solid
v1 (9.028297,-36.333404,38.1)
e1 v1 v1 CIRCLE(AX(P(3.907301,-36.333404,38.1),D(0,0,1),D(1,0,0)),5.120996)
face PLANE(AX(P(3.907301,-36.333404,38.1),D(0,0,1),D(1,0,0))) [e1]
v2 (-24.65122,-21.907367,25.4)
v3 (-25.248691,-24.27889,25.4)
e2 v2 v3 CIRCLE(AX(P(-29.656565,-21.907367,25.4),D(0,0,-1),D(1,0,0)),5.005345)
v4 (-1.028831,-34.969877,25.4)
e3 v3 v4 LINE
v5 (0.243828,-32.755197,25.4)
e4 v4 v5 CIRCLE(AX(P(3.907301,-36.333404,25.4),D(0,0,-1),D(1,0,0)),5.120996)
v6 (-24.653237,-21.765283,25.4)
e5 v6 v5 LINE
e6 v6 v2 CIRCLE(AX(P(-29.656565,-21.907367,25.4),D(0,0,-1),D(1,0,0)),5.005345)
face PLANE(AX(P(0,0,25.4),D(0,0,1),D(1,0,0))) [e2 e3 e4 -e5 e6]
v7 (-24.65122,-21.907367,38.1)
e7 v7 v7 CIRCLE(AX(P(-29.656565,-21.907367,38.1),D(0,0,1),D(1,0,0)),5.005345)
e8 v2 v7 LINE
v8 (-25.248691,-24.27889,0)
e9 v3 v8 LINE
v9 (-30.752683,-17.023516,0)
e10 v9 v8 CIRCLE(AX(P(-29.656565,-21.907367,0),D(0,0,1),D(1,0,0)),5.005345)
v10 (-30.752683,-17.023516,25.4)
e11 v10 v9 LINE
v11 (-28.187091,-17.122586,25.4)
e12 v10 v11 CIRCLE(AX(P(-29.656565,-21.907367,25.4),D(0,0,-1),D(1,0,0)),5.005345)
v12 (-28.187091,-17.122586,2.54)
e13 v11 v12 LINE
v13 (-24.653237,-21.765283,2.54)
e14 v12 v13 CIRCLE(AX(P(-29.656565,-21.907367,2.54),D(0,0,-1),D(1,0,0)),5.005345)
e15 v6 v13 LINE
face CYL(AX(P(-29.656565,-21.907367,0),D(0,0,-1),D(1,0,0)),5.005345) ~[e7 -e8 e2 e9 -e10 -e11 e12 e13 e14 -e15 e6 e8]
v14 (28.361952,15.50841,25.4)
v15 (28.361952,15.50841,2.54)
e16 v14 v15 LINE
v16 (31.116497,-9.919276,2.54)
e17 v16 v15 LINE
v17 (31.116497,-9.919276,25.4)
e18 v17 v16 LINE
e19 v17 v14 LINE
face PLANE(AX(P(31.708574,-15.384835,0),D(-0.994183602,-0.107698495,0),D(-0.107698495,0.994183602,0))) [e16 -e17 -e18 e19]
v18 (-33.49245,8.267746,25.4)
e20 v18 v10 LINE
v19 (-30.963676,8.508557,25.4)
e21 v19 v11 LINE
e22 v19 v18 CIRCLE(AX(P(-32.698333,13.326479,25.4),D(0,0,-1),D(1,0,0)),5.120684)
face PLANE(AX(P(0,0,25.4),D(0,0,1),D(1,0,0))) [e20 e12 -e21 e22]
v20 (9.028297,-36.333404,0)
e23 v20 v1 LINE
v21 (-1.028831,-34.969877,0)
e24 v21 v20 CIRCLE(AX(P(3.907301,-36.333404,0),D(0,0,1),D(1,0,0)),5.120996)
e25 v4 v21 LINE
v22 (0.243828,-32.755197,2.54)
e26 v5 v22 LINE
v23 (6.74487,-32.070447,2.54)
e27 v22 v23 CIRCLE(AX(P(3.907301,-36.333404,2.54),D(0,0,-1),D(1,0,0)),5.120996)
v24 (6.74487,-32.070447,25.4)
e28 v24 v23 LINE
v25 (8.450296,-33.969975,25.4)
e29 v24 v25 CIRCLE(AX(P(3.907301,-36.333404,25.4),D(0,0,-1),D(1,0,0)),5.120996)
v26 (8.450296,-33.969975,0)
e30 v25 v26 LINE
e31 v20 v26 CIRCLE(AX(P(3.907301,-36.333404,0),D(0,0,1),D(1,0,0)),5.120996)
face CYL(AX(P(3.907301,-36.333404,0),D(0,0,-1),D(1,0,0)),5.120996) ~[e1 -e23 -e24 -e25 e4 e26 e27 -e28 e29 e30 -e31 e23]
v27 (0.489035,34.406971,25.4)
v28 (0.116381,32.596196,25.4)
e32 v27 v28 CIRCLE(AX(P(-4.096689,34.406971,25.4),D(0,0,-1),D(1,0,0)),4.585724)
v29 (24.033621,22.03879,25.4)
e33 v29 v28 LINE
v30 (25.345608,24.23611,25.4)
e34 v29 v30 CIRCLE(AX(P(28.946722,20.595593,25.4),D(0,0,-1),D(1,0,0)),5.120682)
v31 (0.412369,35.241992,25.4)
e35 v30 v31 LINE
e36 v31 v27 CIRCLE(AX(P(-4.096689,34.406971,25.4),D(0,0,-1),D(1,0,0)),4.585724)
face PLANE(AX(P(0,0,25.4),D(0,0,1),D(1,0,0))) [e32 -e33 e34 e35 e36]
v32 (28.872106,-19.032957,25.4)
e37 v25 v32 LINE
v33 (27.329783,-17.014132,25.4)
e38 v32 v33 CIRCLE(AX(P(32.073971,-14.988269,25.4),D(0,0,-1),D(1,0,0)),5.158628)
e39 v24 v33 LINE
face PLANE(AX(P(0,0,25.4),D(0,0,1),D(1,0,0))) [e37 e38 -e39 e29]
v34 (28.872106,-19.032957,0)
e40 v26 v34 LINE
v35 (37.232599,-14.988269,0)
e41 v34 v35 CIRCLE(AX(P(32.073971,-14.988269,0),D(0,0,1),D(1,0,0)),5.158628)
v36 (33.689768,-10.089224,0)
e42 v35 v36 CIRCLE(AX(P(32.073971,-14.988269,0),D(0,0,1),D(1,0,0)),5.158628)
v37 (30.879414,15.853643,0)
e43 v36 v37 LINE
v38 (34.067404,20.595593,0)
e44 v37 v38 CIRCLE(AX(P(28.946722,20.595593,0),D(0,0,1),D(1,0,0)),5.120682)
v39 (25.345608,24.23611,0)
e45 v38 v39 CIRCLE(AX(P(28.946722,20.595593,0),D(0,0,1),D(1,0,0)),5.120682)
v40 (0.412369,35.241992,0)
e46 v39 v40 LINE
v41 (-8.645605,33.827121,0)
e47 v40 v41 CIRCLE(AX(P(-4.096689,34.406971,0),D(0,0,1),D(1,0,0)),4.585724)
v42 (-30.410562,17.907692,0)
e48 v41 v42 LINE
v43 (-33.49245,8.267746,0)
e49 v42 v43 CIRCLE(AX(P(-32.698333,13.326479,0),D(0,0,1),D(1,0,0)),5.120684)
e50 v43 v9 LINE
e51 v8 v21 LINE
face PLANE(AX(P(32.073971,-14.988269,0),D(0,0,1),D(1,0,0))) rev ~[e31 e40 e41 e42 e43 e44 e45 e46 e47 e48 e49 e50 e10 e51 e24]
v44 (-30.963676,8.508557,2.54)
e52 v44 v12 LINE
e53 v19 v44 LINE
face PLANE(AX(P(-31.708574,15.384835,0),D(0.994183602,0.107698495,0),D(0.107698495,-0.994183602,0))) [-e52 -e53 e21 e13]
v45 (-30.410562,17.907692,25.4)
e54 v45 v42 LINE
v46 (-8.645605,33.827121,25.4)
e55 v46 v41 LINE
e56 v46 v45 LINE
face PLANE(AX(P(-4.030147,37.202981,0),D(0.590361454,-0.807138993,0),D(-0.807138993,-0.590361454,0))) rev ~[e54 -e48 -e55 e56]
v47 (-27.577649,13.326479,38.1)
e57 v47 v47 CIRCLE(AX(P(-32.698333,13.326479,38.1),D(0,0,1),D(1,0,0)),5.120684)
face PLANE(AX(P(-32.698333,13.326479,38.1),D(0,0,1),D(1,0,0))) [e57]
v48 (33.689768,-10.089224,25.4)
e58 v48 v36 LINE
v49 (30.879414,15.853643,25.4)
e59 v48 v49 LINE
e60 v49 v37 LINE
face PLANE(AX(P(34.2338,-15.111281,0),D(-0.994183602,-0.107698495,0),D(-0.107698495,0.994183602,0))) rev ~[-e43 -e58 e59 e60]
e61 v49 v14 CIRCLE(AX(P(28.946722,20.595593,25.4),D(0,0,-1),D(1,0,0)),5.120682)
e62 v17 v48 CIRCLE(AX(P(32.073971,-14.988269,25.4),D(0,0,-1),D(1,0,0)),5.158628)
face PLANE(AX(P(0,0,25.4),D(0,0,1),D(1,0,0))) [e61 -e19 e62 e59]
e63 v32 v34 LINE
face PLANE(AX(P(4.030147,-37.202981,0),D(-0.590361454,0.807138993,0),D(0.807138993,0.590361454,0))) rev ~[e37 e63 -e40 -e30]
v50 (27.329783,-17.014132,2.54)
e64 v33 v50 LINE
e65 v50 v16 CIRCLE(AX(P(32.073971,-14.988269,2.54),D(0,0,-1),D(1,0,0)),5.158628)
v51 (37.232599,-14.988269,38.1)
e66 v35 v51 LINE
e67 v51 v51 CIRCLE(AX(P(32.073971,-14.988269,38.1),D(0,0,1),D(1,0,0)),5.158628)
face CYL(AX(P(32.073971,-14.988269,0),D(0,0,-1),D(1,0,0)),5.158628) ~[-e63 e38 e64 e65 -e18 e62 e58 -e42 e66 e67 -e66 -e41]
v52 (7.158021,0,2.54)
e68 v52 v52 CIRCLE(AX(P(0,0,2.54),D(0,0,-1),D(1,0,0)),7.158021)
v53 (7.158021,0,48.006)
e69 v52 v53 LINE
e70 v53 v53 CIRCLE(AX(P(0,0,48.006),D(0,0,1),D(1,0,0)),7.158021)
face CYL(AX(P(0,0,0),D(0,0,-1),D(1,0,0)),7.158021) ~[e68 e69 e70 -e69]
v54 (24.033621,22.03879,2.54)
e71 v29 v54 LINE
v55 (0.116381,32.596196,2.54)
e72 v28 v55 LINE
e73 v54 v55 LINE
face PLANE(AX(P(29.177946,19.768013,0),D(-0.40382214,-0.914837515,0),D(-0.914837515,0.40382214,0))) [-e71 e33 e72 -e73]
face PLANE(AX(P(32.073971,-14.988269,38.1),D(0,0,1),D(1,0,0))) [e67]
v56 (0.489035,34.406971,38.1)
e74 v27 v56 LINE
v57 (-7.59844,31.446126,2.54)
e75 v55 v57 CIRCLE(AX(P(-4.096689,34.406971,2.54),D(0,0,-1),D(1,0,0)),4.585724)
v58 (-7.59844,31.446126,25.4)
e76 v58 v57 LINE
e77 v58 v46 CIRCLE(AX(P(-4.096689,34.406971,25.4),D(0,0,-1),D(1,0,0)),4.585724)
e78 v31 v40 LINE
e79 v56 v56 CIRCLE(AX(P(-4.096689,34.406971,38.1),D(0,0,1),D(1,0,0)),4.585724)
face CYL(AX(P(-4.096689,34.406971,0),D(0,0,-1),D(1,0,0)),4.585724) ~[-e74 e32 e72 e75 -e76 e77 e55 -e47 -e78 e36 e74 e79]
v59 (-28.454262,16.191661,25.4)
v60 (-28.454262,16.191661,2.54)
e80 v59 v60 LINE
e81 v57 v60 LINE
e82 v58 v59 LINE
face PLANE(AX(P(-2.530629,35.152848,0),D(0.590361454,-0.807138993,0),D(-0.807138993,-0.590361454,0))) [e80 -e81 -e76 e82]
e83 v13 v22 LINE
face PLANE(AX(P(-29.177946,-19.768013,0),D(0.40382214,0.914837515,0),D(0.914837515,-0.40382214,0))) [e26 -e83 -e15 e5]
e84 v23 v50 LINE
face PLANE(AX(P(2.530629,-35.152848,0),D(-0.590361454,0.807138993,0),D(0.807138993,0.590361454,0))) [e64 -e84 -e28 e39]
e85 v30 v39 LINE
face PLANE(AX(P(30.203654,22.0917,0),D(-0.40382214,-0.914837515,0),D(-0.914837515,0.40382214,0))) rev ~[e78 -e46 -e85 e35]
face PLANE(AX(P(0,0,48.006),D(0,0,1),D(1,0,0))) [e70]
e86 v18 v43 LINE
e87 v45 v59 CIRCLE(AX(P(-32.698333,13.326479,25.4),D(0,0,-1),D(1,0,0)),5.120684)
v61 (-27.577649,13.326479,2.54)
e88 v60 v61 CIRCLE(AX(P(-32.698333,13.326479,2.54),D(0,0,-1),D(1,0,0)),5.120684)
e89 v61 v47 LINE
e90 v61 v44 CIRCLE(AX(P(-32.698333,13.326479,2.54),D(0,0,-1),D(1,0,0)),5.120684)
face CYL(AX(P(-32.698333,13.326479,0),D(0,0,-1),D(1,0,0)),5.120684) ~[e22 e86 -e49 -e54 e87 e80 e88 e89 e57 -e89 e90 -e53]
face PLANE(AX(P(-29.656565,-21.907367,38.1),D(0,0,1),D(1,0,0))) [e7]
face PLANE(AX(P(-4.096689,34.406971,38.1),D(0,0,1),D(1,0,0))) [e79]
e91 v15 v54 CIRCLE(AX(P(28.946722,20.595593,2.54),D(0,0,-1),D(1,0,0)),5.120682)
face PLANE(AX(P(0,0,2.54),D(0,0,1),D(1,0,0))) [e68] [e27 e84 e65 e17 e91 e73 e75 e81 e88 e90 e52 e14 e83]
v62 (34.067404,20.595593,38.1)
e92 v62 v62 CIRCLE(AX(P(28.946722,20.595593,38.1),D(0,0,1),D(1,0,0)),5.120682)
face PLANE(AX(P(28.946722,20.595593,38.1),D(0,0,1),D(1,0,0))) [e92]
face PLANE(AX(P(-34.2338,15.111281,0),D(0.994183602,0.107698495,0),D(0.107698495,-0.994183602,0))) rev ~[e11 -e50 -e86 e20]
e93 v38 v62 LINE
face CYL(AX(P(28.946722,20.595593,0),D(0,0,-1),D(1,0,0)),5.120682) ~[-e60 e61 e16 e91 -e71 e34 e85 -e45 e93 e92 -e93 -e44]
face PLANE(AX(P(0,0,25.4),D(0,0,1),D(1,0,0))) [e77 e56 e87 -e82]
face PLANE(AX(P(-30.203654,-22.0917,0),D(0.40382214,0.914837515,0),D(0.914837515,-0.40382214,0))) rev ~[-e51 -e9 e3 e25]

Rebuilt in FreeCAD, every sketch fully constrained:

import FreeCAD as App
import Part
import Sketcher
Q = App.Units.Quantity


def faces_at(feature, points):
    """Names of the faces that lie closest to the given points."""
    faces = feature.Shape.Faces
    near = lambda p: min(range(len(faces)), key=lambda i: faces[i].distToShape(Part.Vertex(*p))[0])
    return sorted({f"Face{near(p) + 1}" for p in points})


def add_polygon(sketch, points):
    """Adds a closed chain of lines whose ends are joined by coincident constraints."""
    first, n = sketch.GeometryCount, len(points)
    for a, b in zip(points, points[1:] + points[:1]):
        sketch.addGeometry(Part.LineSegment(App.Vector(*a, 0), App.Vector(*b, 0)), False)
    for i in range(n):
        sketch.addConstraint(Sketcher.Constraint("Coincident", first + i, 2, first + (i + 1) % n, 1))

doc = App.newDocument("Part")
body = doc.addObject("PartDesign::Body", "Body")

sketch1 = doc.addObject("Sketcher::SketchObject", "Sketch")
body.addObject(sketch1)
sketch1.AttachmentSupport = (doc.XY_Plane, [""])
sketch1.MapMode = "FlatFace"
add_polygon(sketch1, [(4.030147, -37.202981), (34.2338, -15.111281), (30.203654, 22.0917), (-4.030147, 37.202981), (-34.2338, 15.111281), (-30.203654, -22.0917)])
sketch1.addConstraint([
    Sketcher.Constraint("Symmetric", 0, 2, 3, 2, -1, 1),
    Sketcher.Constraint("Symmetric", 1, 2, 4, 2, -1, 1),
    Sketcher.Constraint("Symmetric", 2, 2, 5, 2, -1, 1),
    Sketcher.Constraint("Equal", 0, 1),
    Sketcher.Constraint("Equal", 1, 2),
    Sketcher.Constraint("DistanceX", -1, 1, 0, 2, Q("34.2338 mm")),
    Sketcher.Constraint("DistanceY", -1, 1, 1, 2, Q("22.0917 mm")),
    Sketcher.Constraint("DistanceX", 2, 2, 1, 2, Q("34.233801 mm")),
    Sketcher.Constraint("DistanceY", 3, 2, 2, 2, Q("22.0917 mm")),
])
pad1 = doc.addObject("PartDesign::Pad", "Pad")
body.addObject(pad1)
pad1.Profile = sketch1
pad1.Length = Q("1 in")
doc.recompute()

thickness = doc.addObject("PartDesign::Thickness", "Thickness")
body.addObject(thickness)
thickness.Base = (pad1, faces_at(pad1, [(0, 0, 25.4)]))
thickness.Value = Q("0.1 in")
thickness.Reversed = True
thickness.Join = "Arc"

sketch2 = doc.addObject("Sketcher::SketchObject", "Sketch001")
body.addObject(sketch2)
sketch2.AttachmentSupport = (doc.XY_Plane, [""])
sketch2.MapMode = "FlatFace"
sketch2.addGeometry(Part.Circle(App.Vector(0, 0, 0), App.Vector(0, 0, 1), 7.158021), False)
sketch2.addConstraint([
    Sketcher.Constraint("Coincident", 0, 3, -1, 1),
    Sketcher.Constraint("Diameter", 0, Q("14.316042 mm")),
])
pad2 = doc.addObject("PartDesign::Pad", "Pad001")
body.addObject(pad2)
pad2.Profile = sketch2
pad2.Length = Q("1.89 in")

sketch3 = doc.addObject("Sketcher::SketchObject", "Sketch002")
body.addObject(sketch3)
sketch3.AttachmentSupport = (doc.XY_Plane, [""])
sketch3.MapMode = "FlatFace"
sketch3.addGeometry(Part.Circle(App.Vector(28.946722, 20.595593, 0), App.Vector(0, 0, 1), 5.120682), False)
sketch3.addConstraint([
    Sketcher.Constraint("Diameter", 0, Q("10.241364 mm")),
    Sketcher.Constraint("DistanceX", -1, 1, 0, 3, Q("28.946722 mm")),
    Sketcher.Constraint("DistanceY", -1, 1, 0, 3, Q("20.595593 mm")),
])
pad3 = doc.addObject("PartDesign::Pad", "Pad002")
body.addObject(pad3)
pad3.Profile = sketch3
pad3.Length = Q("1.5 in")

sketch4 = doc.addObject("Sketcher::SketchObject", "Sketch003")
body.addObject(sketch4)
sketch4.AttachmentSupport = (doc.XY_Plane, [""])
sketch4.MapMode = "FlatFace"
sketch4.addGeometry(Part.Circle(App.Vector(3.907301, -36.333404, 0), App.Vector(0, 0, 1), 5.120996), False)
sketch4.addConstraint([
    Sketcher.Constraint("Diameter", 0, Q("10.241992 mm")),
    Sketcher.Constraint("DistanceX", -1, 1, 0, 3, Q("3.907301 mm")),
    Sketcher.Constraint("DistanceY", 0, 3, -1, 1, Q("36.333404 mm")),
])
pad4 = doc.addObject("PartDesign::Pad", "Pad003")
body.addObject(pad4)
pad4.Profile = sketch4
pad4.Length = Q("1.5 in")

sketch5 = doc.addObject("Sketcher::SketchObject", "Sketch004")
body.addObject(sketch5)
sketch5.AttachmentSupport = (doc.XY_Plane, [""])
sketch5.MapMode = "FlatFace"
sketch5.addGeometry(Part.Circle(App.Vector(32.073971, -14.988269, 0), App.Vector(0, 0, 1), 5.158628), False)
sketch5.addConstraint([
    Sketcher.Constraint("Diameter", 0, Q("10.317256 mm")),
    Sketcher.Constraint("DistanceX", -1, 1, 0, 3, Q("32.073971 mm")),
    Sketcher.Constraint("DistanceY", 0, 3, -1, 1, Q("14.988269 mm")),
])
pad5 = doc.addObject("PartDesign::Pad", "Pad004")
body.addObject(pad5)
pad5.Profile = sketch5
pad5.Length = Q("1.5 in")

sketch6 = doc.addObject("Sketcher::SketchObject", "Sketch005")
body.addObject(sketch6)
sketch6.AttachmentSupport = (doc.XY_Plane, [""])
sketch6.MapMode = "FlatFace"
sketch6.addGeometry(Part.Circle(App.Vector(-32.698333, 13.326479, 0), App.Vector(0, 0, 1), 5.120684), False)
sketch6.addConstraint([
    Sketcher.Constraint("Diameter", 0, Q("10.241368 mm")),
    Sketcher.Constraint("DistanceY", -1, 1, 0, 3, Q("13.326479 mm")),
    Sketcher.Constraint("DistanceX", 0, 3, -1, 1, Q("32.698333 mm")),
])
pad6 = doc.addObject("PartDesign::Pad", "Pad005")
body.addObject(pad6)
pad6.Profile = sketch6
pad6.Length = Q("1.5 in")

sketch7 = doc.addObject("Sketcher::SketchObject", "Sketch006")
body.addObject(sketch7)
sketch7.AttachmentSupport = (doc.XY_Plane, [""])
sketch7.MapMode = "FlatFace"
sketch7.addGeometry(Part.Circle(App.Vector(-29.656565, -21.907367, 0), App.Vector(0, 0, 1), 5.005345), False)
sketch7.addConstraint([
    Sketcher.Constraint("Diameter", 0, Q("10.01069 mm")),
    Sketcher.Constraint("DistanceX", 0, 3, -1, 1, Q("29.656565 mm")),
    Sketcher.Constraint("DistanceY", 0, 3, -1, 1, Q("21.907367 mm")),
])
pad7 = doc.addObject("PartDesign::Pad", "Pad006")
body.addObject(pad7)
pad7.Profile = sketch7
pad7.Length = Q("1.5 in")

sketch8 = doc.addObject("Sketcher::SketchObject", "Sketch007")
body.addObject(sketch8)
sketch8.AttachmentSupport = (doc.XY_Plane, [""])
sketch8.MapMode = "FlatFace"
sketch8.addGeometry(Part.Circle(App.Vector(-4.096689, 34.406971, 0), App.Vector(0, 0, 1), 4.585724), False)
sketch8.addConstraint([
    Sketcher.Constraint("Diameter", 0, Q("9.171448 mm")),
    Sketcher.Constraint("DistanceX", 0, 3, -1, 1, Q("4.096689 mm")),
    Sketcher.Constraint("DistanceY", -1, 1, 0, 3, Q("34.406971 mm")),
])
pad8 = doc.addObject("PartDesign::Pad", "Pad007")
body.addObject(pad8)
pad8.Profile = sketch8
pad8.Length = Q("1.5 in")

doc.recompute()
